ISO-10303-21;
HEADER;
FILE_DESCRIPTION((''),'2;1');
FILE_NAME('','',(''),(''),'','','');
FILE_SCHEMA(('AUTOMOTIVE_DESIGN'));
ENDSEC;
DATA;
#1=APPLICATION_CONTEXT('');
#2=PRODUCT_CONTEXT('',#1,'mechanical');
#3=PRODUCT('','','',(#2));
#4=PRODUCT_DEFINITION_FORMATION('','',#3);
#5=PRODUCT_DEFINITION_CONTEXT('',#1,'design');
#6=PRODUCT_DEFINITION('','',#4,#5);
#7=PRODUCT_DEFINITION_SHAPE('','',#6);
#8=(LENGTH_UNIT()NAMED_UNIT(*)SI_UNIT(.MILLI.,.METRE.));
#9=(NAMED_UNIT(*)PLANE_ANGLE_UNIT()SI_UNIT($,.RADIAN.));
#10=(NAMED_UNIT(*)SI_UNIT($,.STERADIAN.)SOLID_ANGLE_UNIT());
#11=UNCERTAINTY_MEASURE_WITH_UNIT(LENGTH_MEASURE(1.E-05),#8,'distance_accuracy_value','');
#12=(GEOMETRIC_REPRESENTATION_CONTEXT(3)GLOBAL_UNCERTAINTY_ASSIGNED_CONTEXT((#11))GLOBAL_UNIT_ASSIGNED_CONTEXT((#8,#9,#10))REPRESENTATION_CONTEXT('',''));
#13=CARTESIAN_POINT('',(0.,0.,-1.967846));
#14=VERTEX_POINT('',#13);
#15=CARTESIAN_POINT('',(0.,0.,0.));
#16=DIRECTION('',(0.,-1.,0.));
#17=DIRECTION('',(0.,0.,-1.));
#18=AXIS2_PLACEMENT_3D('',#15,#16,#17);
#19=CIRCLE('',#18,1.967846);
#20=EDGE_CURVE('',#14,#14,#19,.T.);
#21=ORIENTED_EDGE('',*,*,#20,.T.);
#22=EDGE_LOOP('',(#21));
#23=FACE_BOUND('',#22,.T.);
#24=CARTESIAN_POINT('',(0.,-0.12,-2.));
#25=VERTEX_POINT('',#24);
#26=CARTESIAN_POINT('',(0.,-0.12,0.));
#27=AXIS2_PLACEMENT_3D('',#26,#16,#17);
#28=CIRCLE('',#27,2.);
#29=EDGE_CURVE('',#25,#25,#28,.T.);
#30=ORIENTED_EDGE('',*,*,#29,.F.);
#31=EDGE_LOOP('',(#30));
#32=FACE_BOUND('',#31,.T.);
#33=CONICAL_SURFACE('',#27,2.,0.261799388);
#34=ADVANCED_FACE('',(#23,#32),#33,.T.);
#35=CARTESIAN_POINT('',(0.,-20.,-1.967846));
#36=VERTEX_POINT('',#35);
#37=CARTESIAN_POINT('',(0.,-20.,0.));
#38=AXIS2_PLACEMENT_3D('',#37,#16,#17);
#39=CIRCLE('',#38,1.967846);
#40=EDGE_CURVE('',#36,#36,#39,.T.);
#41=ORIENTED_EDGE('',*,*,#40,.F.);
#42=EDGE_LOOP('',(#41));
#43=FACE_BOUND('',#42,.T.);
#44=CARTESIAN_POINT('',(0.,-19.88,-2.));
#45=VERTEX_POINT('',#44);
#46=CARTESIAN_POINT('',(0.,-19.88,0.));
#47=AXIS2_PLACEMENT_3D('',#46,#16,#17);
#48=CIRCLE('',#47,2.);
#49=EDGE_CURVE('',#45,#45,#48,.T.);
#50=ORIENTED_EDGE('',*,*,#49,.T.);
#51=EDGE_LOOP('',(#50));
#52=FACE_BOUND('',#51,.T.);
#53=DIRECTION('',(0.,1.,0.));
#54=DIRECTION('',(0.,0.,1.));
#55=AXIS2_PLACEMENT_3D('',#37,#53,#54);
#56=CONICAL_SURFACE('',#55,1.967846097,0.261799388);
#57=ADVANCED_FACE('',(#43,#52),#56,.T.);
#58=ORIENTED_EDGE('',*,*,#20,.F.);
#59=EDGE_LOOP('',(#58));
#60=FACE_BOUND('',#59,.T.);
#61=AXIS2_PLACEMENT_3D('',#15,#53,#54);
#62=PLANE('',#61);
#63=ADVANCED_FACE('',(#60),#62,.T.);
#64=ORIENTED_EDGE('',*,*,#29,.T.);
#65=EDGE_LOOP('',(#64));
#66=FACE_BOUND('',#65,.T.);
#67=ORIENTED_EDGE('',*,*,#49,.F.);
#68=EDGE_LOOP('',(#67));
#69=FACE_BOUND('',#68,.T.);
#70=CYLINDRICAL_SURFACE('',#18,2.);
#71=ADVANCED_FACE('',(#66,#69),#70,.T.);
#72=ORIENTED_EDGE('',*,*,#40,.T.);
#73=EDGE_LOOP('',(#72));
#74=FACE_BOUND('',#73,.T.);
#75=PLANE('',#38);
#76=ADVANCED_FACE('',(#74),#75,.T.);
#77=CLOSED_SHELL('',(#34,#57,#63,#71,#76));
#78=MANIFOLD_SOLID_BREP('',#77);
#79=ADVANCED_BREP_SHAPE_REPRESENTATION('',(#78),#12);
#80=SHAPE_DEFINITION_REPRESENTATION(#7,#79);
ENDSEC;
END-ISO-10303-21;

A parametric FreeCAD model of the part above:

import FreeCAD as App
import Part
import Sketcher
from FreeCAD import Vector
Q = App.Units.Quantity

doc = App.newDocument("Part")
body = doc.addObject("PartDesign::Body", "Body")

# Sketch on XY plane
sketch1 = body.newObject("Sketcher::SketchObject", "Sketch")
sketch1.AttachmentSupport = (doc.getObject("XY_Plane"), [""])
sketch1.MapMode = "FlatFace"
sketch1.addGeometry(Part.LineSegment(Vector(2, -19.88, 0), Vector(2, -0.12, 0)), False)
sketch1.addGeometry(Part.LineSegment(Vector(2, -0.12, 0), Vector(1.967846, 0, 0)), False)
sketch1.addGeometry(Part.LineSegment(Vector(1.967846, 0, 0), Vector(0, 0, 0)), False)
sketch1.addGeometry(Part.LineSegment(Vector(0, 0, 0), Vector(0, -20, 0)), False)
sketch1.addGeometry(Part.LineSegment(Vector(0, -20, 0), Vector(1.967846, -20, 0)), False)
sketch1.addGeometry(Part.LineSegment(Vector(1.967846, -20, 0), Vector(2, -19.88, 0)), False)
sketch1.addConstraint(Sketcher.Constraint("Coincident", 0, 2, 1, 1))
sketch1.addConstraint(Sketcher.Constraint("Coincident", 1, 2, 2, 1))
sketch1.addConstraint(Sketcher.Constraint("Coincident", 2, 2, 3, 1))
sketch1.addConstraint(Sketcher.Constraint("Coincident", 3, 2, 4, 1))
sketch1.addConstraint(Sketcher.Constraint("Coincident", 4, 2, 5, 1))
sketch1.addConstraint(Sketcher.Constraint("Coincident", 5, 2, 0, 1))
sketch1.addConstraint(Sketcher.Constraint("Vertical", 0))
sketch1.addConstraint(Sketcher.Constraint("Horizontal", 2))
sketch1.addConstraint(Sketcher.Constraint("Vertical", 3))
sketch1.addConstraint(Sketcher.Constraint("Horizontal", 4))
sketch1.addConstraint(Sketcher.Constraint("Coincident", 2, 2, -1, 1))
sketch1.addConstraint(Sketcher.Constraint("Vertical", 1, 2, 4, 2))
sketch1.addConstraint(Sketcher.Constraint("Equal", 1, 5))
sketch1.addConstraint(Sketcher.Constraint("DistanceY", 3, 2, 3, 1, Q("20 mm")))
sketch1.addConstraint(Sketcher.Constraint("Angle", 1, Q("105 deg")))
sketch1.addConstraint(Sketcher.Constraint("DistanceX", -1, 1, 0, 2, Q("2 mm")))
sketch1.addConstraint(Sketcher.Constraint("DistanceY", 0, 1, 0, 2, Q("19.76 mm")))
revolution = body.newObject("PartDesign::Revolution", "Revolution")
revolution.Profile = sketch1
revolution.ReferenceAxis = (sketch1, ["V_Axis"])
revolution.Angle = 360

doc.recompute()
